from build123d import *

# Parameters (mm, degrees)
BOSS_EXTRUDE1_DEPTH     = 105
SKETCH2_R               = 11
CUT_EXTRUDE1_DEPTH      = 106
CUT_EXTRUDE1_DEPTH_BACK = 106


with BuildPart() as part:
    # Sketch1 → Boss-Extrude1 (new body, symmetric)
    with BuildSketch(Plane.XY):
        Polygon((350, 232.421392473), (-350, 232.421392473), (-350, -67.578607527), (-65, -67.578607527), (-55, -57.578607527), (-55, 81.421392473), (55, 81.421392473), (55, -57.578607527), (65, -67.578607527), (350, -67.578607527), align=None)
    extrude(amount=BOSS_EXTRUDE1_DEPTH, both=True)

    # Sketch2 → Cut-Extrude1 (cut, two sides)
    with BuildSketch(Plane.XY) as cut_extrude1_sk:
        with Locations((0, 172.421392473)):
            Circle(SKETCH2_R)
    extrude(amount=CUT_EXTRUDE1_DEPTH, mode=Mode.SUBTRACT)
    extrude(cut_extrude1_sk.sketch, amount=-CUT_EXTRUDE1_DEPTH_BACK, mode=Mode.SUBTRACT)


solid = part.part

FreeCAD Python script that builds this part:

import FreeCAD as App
import Part
import Sketcher
from FreeCAD import Vector
Q = App.Units.Quantity


def add_polygon(sketch, points):
    """Adds a closed chain of lines whose ends are joined by coincident constraints."""
    first, n = sketch.GeometryCount, len(points)
    for a, b in zip(points, points[1:] + points[:1]):
        sketch.addGeometry(Part.LineSegment(App.Vector(*a, 0), App.Vector(*b, 0)), False)
    for i in range(n):
        sketch.addConstraint(Sketcher.Constraint("Coincident", first + i, 2, first + (i + 1) % n, 1))

doc = App.newDocument("Part")
body = doc.addObject("PartDesign::Body", "Body")

# Sketch on XY plane
sketch1 = body.newObject("Sketcher::SketchObject", "Sketch")
sketch1.AttachmentSupport = (doc.getObject("XY_Plane"), [""])
sketch1.MapMode = "FlatFace"
add_polygon(sketch1, [(350, 232), (-350, 232), (-350, -68), (-65, -68), (-55, -58), (-55, 81), (55, 81), (55, -58), (65, -68), (350, -68)])  # lines 0-9
sketch1.addConstraint([
    Sketcher.Constraint("Horizontal", 0),
    Sketcher.Constraint("Vertical", 1),
    Sketcher.Constraint("Horizontal", 2),
    Sketcher.Constraint("Vertical", 4),
    Sketcher.Constraint("Horizontal", 5),
    Sketcher.Constraint("Vertical", 6),
    Sketcher.Constraint("Horizontal", 8),
    Sketcher.Constraint("Vertical", 9),
    Sketcher.Constraint("Symmetric", 3, 2, 6, 2, -2),
    Sketcher.Constraint("Symmetric", 2, 2, 7, 2, -2),
    Sketcher.Constraint("Perpendicular", 3, 7),
    Sketcher.Constraint("Equal", 2, 8),
    Sketcher.Constraint("DistanceX", 0, 2, 0, 1, Q("700 mm")),
    Sketcher.Constraint("DistanceX", 2, 1, 2, 2, Q("285 mm")),
    Sketcher.Constraint("DistanceX", 5, 1, 5, 2, Q("110 mm")),
    Sketcher.Constraint("DistanceY", 1, 2, 1, 1, Q("300 mm")),
    Sketcher.Constraint("DistanceY", 4, 1, 4, 2, Q("139 mm")),
    Sketcher.Constraint("DistanceY", -1, 1, 0, 2, Q("232.421392 mm")),
])
pad1 = body.newObject("PartDesign::Pad", "Pad")
pad1.Profile = sketch1
pad1.Length = 210
pad1.Midplane = True

# Sketch on XY plane
sketch2 = body.newObject("Sketcher::SketchObject", "Sketch001")
sketch2.AttachmentSupport = (doc.getObject("XY_Plane"), [""])
sketch2.MapMode = "FlatFace"
sketch2.addGeometry(Part.Circle(Vector(0, 172, 0), Vector(0, 0, 1), 11), False)
sketch2.addConstraint([
    Sketcher.Constraint("PointOnObject", 0, 3, -2),
    Sketcher.Constraint("Diameter", 0, Q("22 mm")),
    Sketcher.Constraint("DistanceY", -1, 1, 0, 3, Q("172.421392 mm")),
])
pocket1 = body.newObject("PartDesign::Pocket", "Pocket")
pocket1.Profile = sketch2
pocket1.Type = "ThroughAll"
pocket1.Midplane = True

doc.recompute()
